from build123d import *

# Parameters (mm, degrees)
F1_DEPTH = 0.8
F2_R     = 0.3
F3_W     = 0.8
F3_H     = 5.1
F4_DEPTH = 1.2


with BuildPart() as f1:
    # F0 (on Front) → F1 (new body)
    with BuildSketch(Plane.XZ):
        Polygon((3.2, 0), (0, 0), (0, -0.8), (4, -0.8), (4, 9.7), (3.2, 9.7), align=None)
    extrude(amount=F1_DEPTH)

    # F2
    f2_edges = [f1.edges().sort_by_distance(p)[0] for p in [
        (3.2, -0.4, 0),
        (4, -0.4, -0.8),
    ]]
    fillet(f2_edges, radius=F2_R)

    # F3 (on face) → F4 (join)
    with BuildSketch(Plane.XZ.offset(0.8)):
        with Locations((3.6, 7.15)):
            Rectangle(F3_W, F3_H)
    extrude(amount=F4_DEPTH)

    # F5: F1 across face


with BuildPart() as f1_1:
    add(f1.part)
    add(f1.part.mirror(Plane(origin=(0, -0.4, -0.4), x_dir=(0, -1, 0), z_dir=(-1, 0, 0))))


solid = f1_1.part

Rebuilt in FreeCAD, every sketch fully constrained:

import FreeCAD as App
import Part
import Sketcher
Q = App.Units.Quantity


def edges_at(feature, points):
    """Names of the edges that pass closest to the given points."""
    edges = feature.Shape.Edges
    near = lambda p: min(range(len(edges)), key=lambda i: edges[i].distToShape(Part.Vertex(*p))[0])
    return sorted({f"Edge{near(p) + 1}" for p in points})

doc = App.newDocument("Part")
body = doc.addObject("PartDesign::Body", "Body")

sketch1 = doc.addObject("Sketcher::SketchObject", "Sketch")
body.addObject(sketch1)
sketch1.AttachmentSupport = (doc.XZ_Plane, [""])
sketch1.MapMode = "FlatFace"
sketch1.addGeometry([
    Part.LineSegment(App.Vector(3.2, 0, 0), App.Vector(0, 0, 0)),
    Part.LineSegment(App.Vector(0, 0, 0), App.Vector(0, -0.8, 0)),
    Part.LineSegment(App.Vector(0, -0.8, 0), App.Vector(4, -0.8, 0)),
    Part.LineSegment(App.Vector(4, -0.8, 0), App.Vector(4, 9.7, 0)),
    Part.LineSegment(App.Vector(4, 9.7, 0), App.Vector(3.2, 9.7, 0)),
    Part.LineSegment(App.Vector(3.2, 9.7, 0), App.Vector(3.2, 0, 0)),
], False)
sketch1.addConstraint([
    Sketcher.Constraint("Coincident", 0, 2, 1, 1),
    Sketcher.Constraint("Coincident", 1, 2, 2, 1),
    Sketcher.Constraint("Coincident", 2, 2, 3, 1),
    Sketcher.Constraint("Coincident", 3, 2, 4, 1),
    Sketcher.Constraint("Coincident", 4, 2, 5, 1),
    Sketcher.Constraint("Coincident", 5, 2, 0, 1),
    Sketcher.Constraint("Horizontal", 0),
    Sketcher.Constraint("Vertical", 1),
    Sketcher.Constraint("Horizontal", 2),
    Sketcher.Constraint("Vertical", 3),
    Sketcher.Constraint("Horizontal", 4),
    Sketcher.Constraint("Vertical", 5),
    Sketcher.Constraint("Coincident", 0, 2, -1, 1),
    Sketcher.Constraint("Equal", 4, 1),
    Sketcher.Constraint("DistanceX", 2, 1, 2, 2, Q("4 mm")),
    Sketcher.Constraint("DistanceX", 0, 2, 0, 1, Q("3.2 mm")),
    Sketcher.Constraint("DistanceY", 3, 1, 3, 2, Q("10.5 mm")),
])
pad1 = doc.addObject("PartDesign::Pad", "Pad")
body.addObject(pad1)
pad1.Profile = sketch1
pad1.Length = 0.8
doc.recompute()

fillet = doc.addObject("PartDesign::Fillet", "Fillet")
body.addObject(fillet)
fillet.Base = (pad1, edges_at(pad1, [(3.2, -0.4, 0), (4, -0.4, -0.8)]))
fillet.Radius = 0.3

sketch2 = doc.addObject("Sketcher::SketchObject", "Sketch001")
body.addObject(sketch2)
sketch2.AttachmentSupport = (doc.XZ_Plane, [""])
sketch2.MapMode = "FlatFace"
sketch2.AttachmentOffset = App.Placement(App.Vector(0, 0, 0.8), App.Rotation())
sketch2.addGeometry([
    Part.LineSegment(App.Vector(3.2, 9.7, 0), App.Vector(3.2, 4.6, 0)),
    Part.LineSegment(App.Vector(3.2, 4.6, 0), App.Vector(4, 4.6, 0)),
    Part.LineSegment(App.Vector(4, 4.6, 0), App.Vector(4, 9.7, 0)),
    Part.LineSegment(App.Vector(4, 9.7, 0), App.Vector(3.2, 9.7, 0)),
], False)
sketch2.addConstraint([
    Sketcher.Constraint("Coincident", 0, 2, 1, 1),
    Sketcher.Constraint("Coincident", 1, 2, 2, 1),
    Sketcher.Constraint("Coincident", 2, 2, 3, 1),
    Sketcher.Constraint("Coincident", 3, 2, 0, 1),
    Sketcher.Constraint("Vertical", 0),
    Sketcher.Constraint("Horizontal", 1),
    Sketcher.Constraint("Vertical", 2),
    Sketcher.Constraint("Horizontal", 3),
    Sketcher.Constraint("DistanceX", 1, 1, 1, 2, Q("0.8 mm")),
    Sketcher.Constraint("DistanceY", 0, 2, 0, 1, Q("5.1 mm")),
    Sketcher.Constraint("DistanceX", -1, 1, 1, 2, Q("4 mm")),
    Sketcher.Constraint("DistanceY", -1, 1, 0, 2, Q("4.6 mm")),
])
pad2 = doc.addObject("PartDesign::Pad", "Pad001")
body.addObject(pad2)
pad2.Profile = sketch2
pad2.Length = 1.2
body2 = doc.addObject("PartDesign::Body", "Body001")
doc.recompute()

body2.BaseFeature = body
doc.recompute()

mirroring = doc.addObject("Part::Mirroring", "Mirroring")
mirroring.Source = body
mirroring.Base = App.Vector(0, -0.4, -0.4)
mirroring.Normal = App.Vector(-1, 0, 0)
body3 = doc.addObject("PartDesign::Body", "Body002")
body3.BaseFeature = mirroring
boolean = doc.addObject("PartDesign::Boolean", "Boolean")
body2.addObject(boolean)
boolean.Type = "Fuse"
boolean.addObjects([body3])
doc.recompute()
mirroring.Visibility = False

doc.recompute()
